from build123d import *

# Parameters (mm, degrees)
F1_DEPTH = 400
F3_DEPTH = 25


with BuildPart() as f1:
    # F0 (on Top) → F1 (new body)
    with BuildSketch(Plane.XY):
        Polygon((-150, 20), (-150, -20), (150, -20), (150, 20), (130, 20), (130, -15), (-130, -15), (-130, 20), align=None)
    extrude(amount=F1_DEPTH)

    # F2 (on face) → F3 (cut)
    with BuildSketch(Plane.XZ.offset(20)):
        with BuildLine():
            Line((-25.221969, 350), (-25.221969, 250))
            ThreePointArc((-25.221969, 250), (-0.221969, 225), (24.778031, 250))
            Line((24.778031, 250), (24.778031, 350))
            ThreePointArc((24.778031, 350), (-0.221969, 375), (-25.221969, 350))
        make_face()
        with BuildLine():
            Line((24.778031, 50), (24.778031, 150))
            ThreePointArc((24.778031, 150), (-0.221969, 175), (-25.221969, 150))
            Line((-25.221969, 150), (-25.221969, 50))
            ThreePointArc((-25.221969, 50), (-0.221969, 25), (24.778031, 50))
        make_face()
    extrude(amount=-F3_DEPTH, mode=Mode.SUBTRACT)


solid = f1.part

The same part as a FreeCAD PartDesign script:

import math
import FreeCAD as App
import Part
import Sketcher
from FreeCAD import Vector

doc = App.newDocument("Part")
body = doc.addObject("PartDesign::Body", "Body")

sketch1 = body.newObject("Sketcher::SketchObject", "Sketch")
sketch1.AttachmentSupport = (doc.getObject("XY_Plane"), [""])
sketch1.MapMode = "FlatFace"
sketch1.addGeometry(Part.LineSegment(Vector(-150, 20, 0), Vector(-150, -20, 0)), False)
sketch1.addGeometry(Part.LineSegment(Vector(-150, -20, 0), Vector(150, -20, 0)), False)
sketch1.addGeometry(Part.LineSegment(Vector(150, -20, 0), Vector(150, 20, 0)), False)
sketch1.addGeometry(Part.LineSegment(Vector(150, 20, 0), Vector(130, 20, 0)), False)
sketch1.addGeometry(Part.LineSegment(Vector(130, 20, 0), Vector(130, -15, 0)), False)
sketch1.addGeometry(Part.LineSegment(Vector(130, -15, 0), Vector(-130, -15, 0)), False)
sketch1.addGeometry(Part.LineSegment(Vector(-130, -15, 0), Vector(-130, 20, 0)), False)
sketch1.addGeometry(Part.LineSegment(Vector(-130, 20, 0), Vector(-150, 20, 0)), False)
sketch1.addConstraint(Sketcher.Constraint("Coincident", 0, 2, 1, 1))
sketch1.addConstraint(Sketcher.Constraint("Coincident", 1, 2, 2, 1))
sketch1.addConstraint(Sketcher.Constraint("Coincident", 2, 2, 3, 1))
sketch1.addConstraint(Sketcher.Constraint("Coincident", 3, 2, 4, 1))
sketch1.addConstraint(Sketcher.Constraint("Coincident", 4, 2, 5, 1))
sketch1.addConstraint(Sketcher.Constraint("Coincident", 5, 2, 6, 1))
sketch1.addConstraint(Sketcher.Constraint("Coincident", 6, 2, 7, 1))
sketch1.addConstraint(Sketcher.Constraint("Coincident", 7, 2, 0, 1))
sketch1.addConstraint(Sketcher.Constraint("Vertical", 0))
sketch1.addConstraint(Sketcher.Constraint("Horizontal", 1))
sketch1.addConstraint(Sketcher.Constraint("Vertical", 2))
sketch1.addConstraint(Sketcher.Constraint("Horizontal", 3))
sketch1.addConstraint(Sketcher.Constraint("Vertical", 4))
sketch1.addConstraint(Sketcher.Constraint("Horizontal", 5))
sketch1.addConstraint(Sketcher.Constraint("Vertical", 6))
sketch1.addConstraint(Sketcher.Constraint("Horizontal", 7))
sketch1.addConstraint(Sketcher.Constraint("Symmetric", 0, 2, 2, 2, -1, 1))
sketch1.addConstraint(Sketcher.Constraint("Symmetric", 3, 2, 6, 2, -2))
sketch1.addConstraint(Sketcher.Constraint("DistanceX", 1, 1, 1, 2, 300.0))
sketch1.addConstraint(Sketcher.Constraint("DistanceX", 3, 2, 3, 1, 20.0))
sketch1.addConstraint(Sketcher.Constraint("DistanceY", 0, 2, 0, 1, 40.0))
sketch1.addConstraint(Sketcher.Constraint("DistanceY", 4, 2, 4, 1, 35.0))
pad1 = body.newObject("PartDesign::Pad", "Pad")
pad1.Profile = sketch1
pad1.Length = 400

sketch2 = body.newObject("Sketcher::SketchObject", "Sketch001")
sketch2.AttachmentSupport = (doc.getObject("XZ_Plane"), [""])
sketch2.MapMode = "FlatFace"
sketch2.AttachmentOffset = App.Placement(Vector(0, 0, 20), App.Rotation())
sketch2.addGeometry(Part.LineSegment(Vector(-25, 350, 0), Vector(-25, 250, 0)), False)
sketch2.addGeometry(Part.ArcOfCircle(Part.Circle(Vector(0, 250, 0), Vector(0, 0, 1), 25), math.radians(180), math.radians(360)), False)
sketch2.addGeometry(Part.LineSegment(Vector(25, 250, 0), Vector(25, 350, 0)), False)
sketch2.addGeometry(Part.ArcOfCircle(Part.Circle(Vector(0, 350, 0), Vector(0, 0, 1), 25), math.radians(0), math.radians(180)), False)
sketch2.addGeometry(Part.LineSegment(Vector(25, 50, 0), Vector(25, 150, 0)), False)
sketch2.addGeometry(Part.ArcOfCircle(Part.Circle(Vector(0, 150, 0), Vector(0, 0, 1), 25), math.radians(0), math.radians(180)), False)
sketch2.addGeometry(Part.LineSegment(Vector(-25, 150, 0), Vector(-25, 50, 0)), False)
sketch2.addGeometry(Part.ArcOfCircle(Part.Circle(Vector(0, 50, 0), Vector(0, 0, 1), 25), math.radians(180), math.radians(360)), False)
sketch2.addConstraint(Sketcher.Constraint("Tangent", 0, 2, 1, 1))
sketch2.addConstraint(Sketcher.Constraint("Tangent", 1, 2, 2, 1))
sketch2.addConstraint(Sketcher.Constraint("Tangent", 2, 2, 3, 1))
sketch2.addConstraint(Sketcher.Constraint("Tangent", 3, 2, 0, 1))
sketch2.addConstraint(Sketcher.Constraint("Tangent", 4, 2, 5, 1))
sketch2.addConstraint(Sketcher.Constraint("Tangent", 5, 2, 6, 1))
sketch2.addConstraint(Sketcher.Constraint("Tangent", 6, 2, 7, 1))
sketch2.addConstraint(Sketcher.Constraint("Tangent", 7, 2, 4, 1))
sketch2.addConstraint(Sketcher.Constraint("Vertical", 0))
sketch2.addConstraint(Sketcher.Constraint("Vertical", 2))
sketch2.addConstraint(Sketcher.Constraint("Vertical", 4))
sketch2.addConstraint(Sketcher.Constraint("Vertical", 6))
sketch2.addConstraint(Sketcher.Constraint("Equal", 3, 5))
sketch2.addConstraint(Sketcher.Constraint("Vertical", 3, 3, 5, 3))
sketch2.addConstraint(Sketcher.Constraint("Equal", 2, 4))
sketch2.addConstraint(Sketcher.Constraint("Radius", 1, 25.0))
sketch2.addConstraint(Sketcher.Constraint("DistanceY", 0, 2, 0, 1, 100.0))
sketch2.addConstraint(Sketcher.Constraint("DistanceY", -1, 1, 1, 3, 250.0))
sketch2.addConstraint(Sketcher.Constraint("DistanceY", -1, 1, 5, 3, 150.0))
sketch2.addConstraint(Sketcher.Constraint("DistanceX", 1, 3, -1, 1, 0.221969))
pocket1 = body.newObject("PartDesign::Pocket", "Pocket")
pocket1.Profile = sketch2
pocket1.Length = 25

doc.recompute()
